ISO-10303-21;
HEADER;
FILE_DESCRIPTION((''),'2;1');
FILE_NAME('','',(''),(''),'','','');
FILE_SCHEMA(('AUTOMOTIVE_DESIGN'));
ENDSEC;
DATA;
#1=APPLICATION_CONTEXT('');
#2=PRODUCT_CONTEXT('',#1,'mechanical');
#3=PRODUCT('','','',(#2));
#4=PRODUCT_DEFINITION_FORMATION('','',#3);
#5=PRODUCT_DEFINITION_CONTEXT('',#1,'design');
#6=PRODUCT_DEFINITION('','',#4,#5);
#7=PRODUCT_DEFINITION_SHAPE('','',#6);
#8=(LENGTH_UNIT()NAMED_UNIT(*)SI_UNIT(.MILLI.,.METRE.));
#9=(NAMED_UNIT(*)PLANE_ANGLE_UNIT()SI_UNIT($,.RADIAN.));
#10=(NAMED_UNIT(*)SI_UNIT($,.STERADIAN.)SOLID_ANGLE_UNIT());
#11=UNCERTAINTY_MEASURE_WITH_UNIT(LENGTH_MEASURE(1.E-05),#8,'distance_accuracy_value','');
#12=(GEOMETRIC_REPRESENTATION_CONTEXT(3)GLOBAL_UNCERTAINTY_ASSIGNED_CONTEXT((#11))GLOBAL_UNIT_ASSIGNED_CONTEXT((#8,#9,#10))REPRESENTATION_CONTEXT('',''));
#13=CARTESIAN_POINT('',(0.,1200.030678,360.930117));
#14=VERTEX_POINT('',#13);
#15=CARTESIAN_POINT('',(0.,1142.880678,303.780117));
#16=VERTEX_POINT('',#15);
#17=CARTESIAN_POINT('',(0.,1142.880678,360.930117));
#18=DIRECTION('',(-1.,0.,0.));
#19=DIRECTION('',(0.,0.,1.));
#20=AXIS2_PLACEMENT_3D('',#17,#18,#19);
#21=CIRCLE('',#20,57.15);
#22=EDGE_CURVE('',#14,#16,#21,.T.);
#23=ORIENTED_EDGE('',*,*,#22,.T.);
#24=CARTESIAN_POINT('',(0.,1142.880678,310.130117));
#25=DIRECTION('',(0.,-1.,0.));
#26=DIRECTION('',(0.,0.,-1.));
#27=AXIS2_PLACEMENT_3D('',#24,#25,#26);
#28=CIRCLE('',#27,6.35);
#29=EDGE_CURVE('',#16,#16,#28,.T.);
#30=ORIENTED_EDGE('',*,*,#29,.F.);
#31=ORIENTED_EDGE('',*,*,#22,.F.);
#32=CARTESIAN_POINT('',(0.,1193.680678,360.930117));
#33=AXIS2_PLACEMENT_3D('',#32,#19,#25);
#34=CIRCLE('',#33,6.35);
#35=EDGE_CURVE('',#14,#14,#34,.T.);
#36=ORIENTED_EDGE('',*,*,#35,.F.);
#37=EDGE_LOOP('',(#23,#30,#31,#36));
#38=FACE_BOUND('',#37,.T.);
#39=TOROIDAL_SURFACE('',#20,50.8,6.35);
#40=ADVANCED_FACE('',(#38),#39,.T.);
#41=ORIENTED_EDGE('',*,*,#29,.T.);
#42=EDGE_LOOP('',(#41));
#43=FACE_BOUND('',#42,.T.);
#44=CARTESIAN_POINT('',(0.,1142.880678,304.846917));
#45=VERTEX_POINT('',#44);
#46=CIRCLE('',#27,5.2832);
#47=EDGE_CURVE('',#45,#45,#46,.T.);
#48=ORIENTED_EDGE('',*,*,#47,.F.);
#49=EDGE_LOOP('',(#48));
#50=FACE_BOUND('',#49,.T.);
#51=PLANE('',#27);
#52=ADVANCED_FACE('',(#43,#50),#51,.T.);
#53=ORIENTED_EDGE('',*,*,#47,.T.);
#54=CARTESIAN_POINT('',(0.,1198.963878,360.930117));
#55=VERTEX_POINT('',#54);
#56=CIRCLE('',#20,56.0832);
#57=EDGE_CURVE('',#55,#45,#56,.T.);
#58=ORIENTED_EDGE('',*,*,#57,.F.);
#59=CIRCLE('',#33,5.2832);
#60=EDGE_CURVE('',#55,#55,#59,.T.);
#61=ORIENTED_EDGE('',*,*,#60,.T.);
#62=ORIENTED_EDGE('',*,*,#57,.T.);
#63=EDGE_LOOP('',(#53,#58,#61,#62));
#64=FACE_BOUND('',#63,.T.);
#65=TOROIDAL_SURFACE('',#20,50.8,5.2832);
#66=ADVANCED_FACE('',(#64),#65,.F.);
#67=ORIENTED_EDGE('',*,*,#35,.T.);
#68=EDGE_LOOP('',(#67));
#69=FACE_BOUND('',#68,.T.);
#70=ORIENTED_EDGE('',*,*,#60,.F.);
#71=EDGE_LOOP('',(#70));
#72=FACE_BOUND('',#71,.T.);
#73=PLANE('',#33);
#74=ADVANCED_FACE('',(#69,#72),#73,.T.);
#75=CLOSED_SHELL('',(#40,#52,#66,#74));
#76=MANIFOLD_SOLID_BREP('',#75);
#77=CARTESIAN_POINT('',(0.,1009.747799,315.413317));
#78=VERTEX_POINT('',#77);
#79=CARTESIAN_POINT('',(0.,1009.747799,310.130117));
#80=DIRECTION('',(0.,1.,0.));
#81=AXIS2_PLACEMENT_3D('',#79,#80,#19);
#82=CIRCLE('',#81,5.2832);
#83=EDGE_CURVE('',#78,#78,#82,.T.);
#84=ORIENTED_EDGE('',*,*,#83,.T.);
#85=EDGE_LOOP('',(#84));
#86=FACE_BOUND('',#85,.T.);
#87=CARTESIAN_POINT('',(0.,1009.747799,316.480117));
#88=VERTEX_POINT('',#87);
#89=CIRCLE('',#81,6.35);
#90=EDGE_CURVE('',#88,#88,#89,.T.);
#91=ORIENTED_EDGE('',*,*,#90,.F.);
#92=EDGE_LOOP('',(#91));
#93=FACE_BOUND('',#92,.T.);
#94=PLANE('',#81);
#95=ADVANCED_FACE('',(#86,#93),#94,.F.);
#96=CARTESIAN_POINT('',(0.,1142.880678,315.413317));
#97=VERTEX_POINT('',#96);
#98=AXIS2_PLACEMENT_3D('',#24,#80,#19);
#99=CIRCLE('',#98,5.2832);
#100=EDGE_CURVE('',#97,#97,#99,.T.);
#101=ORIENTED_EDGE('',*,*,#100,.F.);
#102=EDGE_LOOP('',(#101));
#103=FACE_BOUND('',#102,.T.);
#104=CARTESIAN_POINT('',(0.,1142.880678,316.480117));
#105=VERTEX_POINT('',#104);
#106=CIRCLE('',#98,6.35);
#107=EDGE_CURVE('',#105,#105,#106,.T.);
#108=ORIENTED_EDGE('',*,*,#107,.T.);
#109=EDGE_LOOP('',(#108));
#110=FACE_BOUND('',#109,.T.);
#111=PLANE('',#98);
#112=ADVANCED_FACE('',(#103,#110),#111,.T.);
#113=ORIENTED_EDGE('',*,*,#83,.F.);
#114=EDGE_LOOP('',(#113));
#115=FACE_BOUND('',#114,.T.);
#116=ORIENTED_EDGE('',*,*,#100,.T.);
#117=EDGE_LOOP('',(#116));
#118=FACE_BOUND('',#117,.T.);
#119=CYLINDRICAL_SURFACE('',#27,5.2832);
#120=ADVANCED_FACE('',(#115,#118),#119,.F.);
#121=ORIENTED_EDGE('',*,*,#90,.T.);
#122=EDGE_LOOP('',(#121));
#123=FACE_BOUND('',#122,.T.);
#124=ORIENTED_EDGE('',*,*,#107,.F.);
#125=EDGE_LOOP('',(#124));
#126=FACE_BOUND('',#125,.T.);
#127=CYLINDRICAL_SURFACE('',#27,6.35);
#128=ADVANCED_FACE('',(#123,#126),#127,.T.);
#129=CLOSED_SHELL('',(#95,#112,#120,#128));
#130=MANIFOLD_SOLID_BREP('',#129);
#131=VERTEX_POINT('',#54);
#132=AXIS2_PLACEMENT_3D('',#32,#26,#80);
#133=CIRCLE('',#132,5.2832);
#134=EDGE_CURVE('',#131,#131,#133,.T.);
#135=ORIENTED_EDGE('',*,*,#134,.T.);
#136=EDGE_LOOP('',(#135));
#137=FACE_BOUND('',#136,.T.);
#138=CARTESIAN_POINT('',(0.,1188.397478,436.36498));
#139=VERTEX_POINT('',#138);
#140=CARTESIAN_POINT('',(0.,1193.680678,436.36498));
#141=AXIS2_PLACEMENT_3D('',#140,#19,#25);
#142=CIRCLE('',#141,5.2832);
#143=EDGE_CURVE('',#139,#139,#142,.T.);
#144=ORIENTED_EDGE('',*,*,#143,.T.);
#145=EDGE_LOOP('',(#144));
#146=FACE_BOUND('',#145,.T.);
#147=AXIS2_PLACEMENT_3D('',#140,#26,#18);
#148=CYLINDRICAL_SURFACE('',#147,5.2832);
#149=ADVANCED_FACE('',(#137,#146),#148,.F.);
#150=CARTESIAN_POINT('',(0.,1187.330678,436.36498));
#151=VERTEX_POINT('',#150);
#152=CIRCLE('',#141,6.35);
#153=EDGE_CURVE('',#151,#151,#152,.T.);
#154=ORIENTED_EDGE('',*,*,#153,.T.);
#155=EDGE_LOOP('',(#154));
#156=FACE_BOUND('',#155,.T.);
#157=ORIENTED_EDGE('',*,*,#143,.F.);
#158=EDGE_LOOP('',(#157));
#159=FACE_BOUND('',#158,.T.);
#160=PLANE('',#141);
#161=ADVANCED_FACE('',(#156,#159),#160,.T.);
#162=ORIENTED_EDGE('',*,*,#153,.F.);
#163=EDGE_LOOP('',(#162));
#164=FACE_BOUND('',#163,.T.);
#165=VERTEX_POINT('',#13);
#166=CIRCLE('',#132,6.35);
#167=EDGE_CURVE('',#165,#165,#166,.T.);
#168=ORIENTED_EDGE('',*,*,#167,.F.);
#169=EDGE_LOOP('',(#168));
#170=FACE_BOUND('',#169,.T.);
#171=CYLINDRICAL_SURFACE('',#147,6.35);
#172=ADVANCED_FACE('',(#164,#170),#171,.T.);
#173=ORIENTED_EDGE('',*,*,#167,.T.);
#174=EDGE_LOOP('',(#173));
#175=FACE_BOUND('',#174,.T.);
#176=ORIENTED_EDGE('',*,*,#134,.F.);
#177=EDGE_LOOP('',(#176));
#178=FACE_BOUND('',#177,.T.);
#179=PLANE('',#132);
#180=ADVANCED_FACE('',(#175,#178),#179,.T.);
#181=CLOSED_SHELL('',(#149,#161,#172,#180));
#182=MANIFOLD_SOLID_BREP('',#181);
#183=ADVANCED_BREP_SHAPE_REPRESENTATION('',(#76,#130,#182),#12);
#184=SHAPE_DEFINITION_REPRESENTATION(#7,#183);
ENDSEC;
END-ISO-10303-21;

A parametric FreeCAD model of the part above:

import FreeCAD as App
import Part
import Sketcher
Q = App.Units.Quantity

doc = App.newDocument("Part")
params = doc.addObject("Spreadsheet::Sheet", "Params")
for row, (alias, value) in enumerate([
    ("sketch1_diameter", "0.5 in"),
    ("sketch1_diameter2", "0.416 in"),
    ("pad1_length", "133.13288 mm"),
    ("sketch2_diameter", "0.5 in"),
    ("sketch2_diameter2", "0.416 in"),
    ("revolution_angle", "90 deg"),
    ("sketch3_diameter", "0.5 in"),
    ("sketch3_diameter2", "0.416 in"),
    ("pad2_length", "75.434862 mm"),
], start=1):
    params.set(f"A{row}", alias)
    params.set(f"B{row}", "=" + value)
    params.setAlias(f"B{row}", alias)

body = doc.addObject("PartDesign::Body", "Body")

sketch1 = body.newObject("Sketcher::SketchObject", "Sketch")
sketch1.AttachmentSupport = (doc.getObject("XZ_Plane"), [""])
sketch1.MapMode = "FlatFace"
sketch1.AttachmentOffset = App.Placement(App.Vector(0, 0, -1009.747799), App.Rotation())
sketch1.addGeometry([
    Part.Circle(App.Vector(0, 310, 0), App.Vector(0, 0, 1), 6),
    Part.Circle(App.Vector(0, 310, 0), App.Vector(0, 0, 1), 5),
], False)
sketch1.addConstraint([
    Sketcher.Constraint("Coincident", 1, 3, 0, 3),
    Sketcher.Constraint("PointOnObject", 0, 3, -2),
    Sketcher.Constraint("Diameter", 0, Q("0.5 in")),
    Sketcher.Constraint("Diameter", 1, Q("0.416 in")),
    Sketcher.Constraint("DistanceY", -1, 1, 0, 3, 310.130117),
])
sketch1.setExpression("Constraints[2]", "Params.sketch1_diameter")
sketch1.setExpression("Constraints[3]", "Params.sketch1_diameter2")
pad1 = body.newObject("PartDesign::Pad", "Pad")
pad1.Profile = sketch1
pad1.setExpression("Length", "Params.pad1_length")
pad1.Reversed = True
body2 = doc.addObject("PartDesign::Body", "Body001")

sketch2 = body2.newObject("Sketcher::SketchObject", "Sketch001")
sketch2.AttachmentSupport = (doc.getObject("XZ_Plane001"), [""])
sketch2.MapMode = "FlatFace"
sketch2.AttachmentOffset = App.Placement(App.Vector(0, 0, -1142.880678), App.Rotation())
sketch2.addGeometry([
    Part.Circle(App.Vector(0, 310, 0), App.Vector(0, 0, 1), 6),
    Part.Circle(App.Vector(0, 310, 0), App.Vector(0, 0, 1), 5),
], False)
sketch2.addGeometry(Part.LineSegment(App.Vector(0, 361, 0), App.Vector(10, 361, 0)), True)
sketch2.addConstraint([
    Sketcher.Constraint("Horizontal", 2),
    Sketcher.Constraint("Coincident", 1, 3, 0, 3),
    Sketcher.Constraint("PointOnObject", 0, 3, -2),
    Sketcher.Constraint("PointOnObject", 2, 1, -2),
    Sketcher.Constraint("Diameter", 0, Q("0.5 in")),
    Sketcher.Constraint("Diameter", 1, Q("0.416 in")),
    Sketcher.Constraint("DistanceY", 0, 3, 2, 1, Q("2 in")),
    Sketcher.Constraint("DistanceX", 2, 1, 2, 2, 10.0),
    Sketcher.Constraint("DistanceY", -1, 1, 0, 3, 310.130117),
])
sketch2.setExpression("Constraints[4]", "Params.sketch2_diameter")
sketch2.setExpression("Constraints[5]", "Params.sketch2_diameter2")
revolution = body2.newObject("PartDesign::Revolution", "Revolution")
revolution.Profile = sketch2
revolution.ReferenceAxis = (sketch2, ["Axis0"])
revolution.setExpression("Angle", "Params.revolution_angle")
body3 = doc.addObject("PartDesign::Body", "Body002")

sketch3 = body3.newObject("Sketcher::SketchObject", "Sketch002")
sketch3.AttachmentSupport = (doc.getObject("XY_Plane002"), [""])
sketch3.MapMode = "FlatFace"
sketch3.AttachmentOffset = App.Placement(App.Vector(0, 0, 436.36498), App.Rotation())
sketch3.addGeometry([
    Part.Circle(App.Vector(0, 1194, 0), App.Vector(0, 0, 1), 6),
    Part.Circle(App.Vector(0, 1194, 0), App.Vector(0, 0, 1), 5),
], False)
sketch3.addConstraint([
    Sketcher.Constraint("Coincident", 1, 3, 0, 3),
    Sketcher.Constraint("PointOnObject", 0, 3, -2),
    Sketcher.Constraint("Diameter", 0, Q("0.5 in")),
    Sketcher.Constraint("Diameter", 1, Q("0.416 in")),
    Sketcher.Constraint("DistanceY", -1, 1, 0, 3, 1193.680678),
])
sketch3.setExpression("Constraints[2]", "Params.sketch3_diameter")
sketch3.setExpression("Constraints[3]", "Params.sketch3_diameter2")
pad2 = body3.newObject("PartDesign::Pad", "Pad001")
pad2.Profile = sketch3
pad2.setExpression("Length", "Params.pad2_length")
pad2.Reversed = True

doc.recompute()
